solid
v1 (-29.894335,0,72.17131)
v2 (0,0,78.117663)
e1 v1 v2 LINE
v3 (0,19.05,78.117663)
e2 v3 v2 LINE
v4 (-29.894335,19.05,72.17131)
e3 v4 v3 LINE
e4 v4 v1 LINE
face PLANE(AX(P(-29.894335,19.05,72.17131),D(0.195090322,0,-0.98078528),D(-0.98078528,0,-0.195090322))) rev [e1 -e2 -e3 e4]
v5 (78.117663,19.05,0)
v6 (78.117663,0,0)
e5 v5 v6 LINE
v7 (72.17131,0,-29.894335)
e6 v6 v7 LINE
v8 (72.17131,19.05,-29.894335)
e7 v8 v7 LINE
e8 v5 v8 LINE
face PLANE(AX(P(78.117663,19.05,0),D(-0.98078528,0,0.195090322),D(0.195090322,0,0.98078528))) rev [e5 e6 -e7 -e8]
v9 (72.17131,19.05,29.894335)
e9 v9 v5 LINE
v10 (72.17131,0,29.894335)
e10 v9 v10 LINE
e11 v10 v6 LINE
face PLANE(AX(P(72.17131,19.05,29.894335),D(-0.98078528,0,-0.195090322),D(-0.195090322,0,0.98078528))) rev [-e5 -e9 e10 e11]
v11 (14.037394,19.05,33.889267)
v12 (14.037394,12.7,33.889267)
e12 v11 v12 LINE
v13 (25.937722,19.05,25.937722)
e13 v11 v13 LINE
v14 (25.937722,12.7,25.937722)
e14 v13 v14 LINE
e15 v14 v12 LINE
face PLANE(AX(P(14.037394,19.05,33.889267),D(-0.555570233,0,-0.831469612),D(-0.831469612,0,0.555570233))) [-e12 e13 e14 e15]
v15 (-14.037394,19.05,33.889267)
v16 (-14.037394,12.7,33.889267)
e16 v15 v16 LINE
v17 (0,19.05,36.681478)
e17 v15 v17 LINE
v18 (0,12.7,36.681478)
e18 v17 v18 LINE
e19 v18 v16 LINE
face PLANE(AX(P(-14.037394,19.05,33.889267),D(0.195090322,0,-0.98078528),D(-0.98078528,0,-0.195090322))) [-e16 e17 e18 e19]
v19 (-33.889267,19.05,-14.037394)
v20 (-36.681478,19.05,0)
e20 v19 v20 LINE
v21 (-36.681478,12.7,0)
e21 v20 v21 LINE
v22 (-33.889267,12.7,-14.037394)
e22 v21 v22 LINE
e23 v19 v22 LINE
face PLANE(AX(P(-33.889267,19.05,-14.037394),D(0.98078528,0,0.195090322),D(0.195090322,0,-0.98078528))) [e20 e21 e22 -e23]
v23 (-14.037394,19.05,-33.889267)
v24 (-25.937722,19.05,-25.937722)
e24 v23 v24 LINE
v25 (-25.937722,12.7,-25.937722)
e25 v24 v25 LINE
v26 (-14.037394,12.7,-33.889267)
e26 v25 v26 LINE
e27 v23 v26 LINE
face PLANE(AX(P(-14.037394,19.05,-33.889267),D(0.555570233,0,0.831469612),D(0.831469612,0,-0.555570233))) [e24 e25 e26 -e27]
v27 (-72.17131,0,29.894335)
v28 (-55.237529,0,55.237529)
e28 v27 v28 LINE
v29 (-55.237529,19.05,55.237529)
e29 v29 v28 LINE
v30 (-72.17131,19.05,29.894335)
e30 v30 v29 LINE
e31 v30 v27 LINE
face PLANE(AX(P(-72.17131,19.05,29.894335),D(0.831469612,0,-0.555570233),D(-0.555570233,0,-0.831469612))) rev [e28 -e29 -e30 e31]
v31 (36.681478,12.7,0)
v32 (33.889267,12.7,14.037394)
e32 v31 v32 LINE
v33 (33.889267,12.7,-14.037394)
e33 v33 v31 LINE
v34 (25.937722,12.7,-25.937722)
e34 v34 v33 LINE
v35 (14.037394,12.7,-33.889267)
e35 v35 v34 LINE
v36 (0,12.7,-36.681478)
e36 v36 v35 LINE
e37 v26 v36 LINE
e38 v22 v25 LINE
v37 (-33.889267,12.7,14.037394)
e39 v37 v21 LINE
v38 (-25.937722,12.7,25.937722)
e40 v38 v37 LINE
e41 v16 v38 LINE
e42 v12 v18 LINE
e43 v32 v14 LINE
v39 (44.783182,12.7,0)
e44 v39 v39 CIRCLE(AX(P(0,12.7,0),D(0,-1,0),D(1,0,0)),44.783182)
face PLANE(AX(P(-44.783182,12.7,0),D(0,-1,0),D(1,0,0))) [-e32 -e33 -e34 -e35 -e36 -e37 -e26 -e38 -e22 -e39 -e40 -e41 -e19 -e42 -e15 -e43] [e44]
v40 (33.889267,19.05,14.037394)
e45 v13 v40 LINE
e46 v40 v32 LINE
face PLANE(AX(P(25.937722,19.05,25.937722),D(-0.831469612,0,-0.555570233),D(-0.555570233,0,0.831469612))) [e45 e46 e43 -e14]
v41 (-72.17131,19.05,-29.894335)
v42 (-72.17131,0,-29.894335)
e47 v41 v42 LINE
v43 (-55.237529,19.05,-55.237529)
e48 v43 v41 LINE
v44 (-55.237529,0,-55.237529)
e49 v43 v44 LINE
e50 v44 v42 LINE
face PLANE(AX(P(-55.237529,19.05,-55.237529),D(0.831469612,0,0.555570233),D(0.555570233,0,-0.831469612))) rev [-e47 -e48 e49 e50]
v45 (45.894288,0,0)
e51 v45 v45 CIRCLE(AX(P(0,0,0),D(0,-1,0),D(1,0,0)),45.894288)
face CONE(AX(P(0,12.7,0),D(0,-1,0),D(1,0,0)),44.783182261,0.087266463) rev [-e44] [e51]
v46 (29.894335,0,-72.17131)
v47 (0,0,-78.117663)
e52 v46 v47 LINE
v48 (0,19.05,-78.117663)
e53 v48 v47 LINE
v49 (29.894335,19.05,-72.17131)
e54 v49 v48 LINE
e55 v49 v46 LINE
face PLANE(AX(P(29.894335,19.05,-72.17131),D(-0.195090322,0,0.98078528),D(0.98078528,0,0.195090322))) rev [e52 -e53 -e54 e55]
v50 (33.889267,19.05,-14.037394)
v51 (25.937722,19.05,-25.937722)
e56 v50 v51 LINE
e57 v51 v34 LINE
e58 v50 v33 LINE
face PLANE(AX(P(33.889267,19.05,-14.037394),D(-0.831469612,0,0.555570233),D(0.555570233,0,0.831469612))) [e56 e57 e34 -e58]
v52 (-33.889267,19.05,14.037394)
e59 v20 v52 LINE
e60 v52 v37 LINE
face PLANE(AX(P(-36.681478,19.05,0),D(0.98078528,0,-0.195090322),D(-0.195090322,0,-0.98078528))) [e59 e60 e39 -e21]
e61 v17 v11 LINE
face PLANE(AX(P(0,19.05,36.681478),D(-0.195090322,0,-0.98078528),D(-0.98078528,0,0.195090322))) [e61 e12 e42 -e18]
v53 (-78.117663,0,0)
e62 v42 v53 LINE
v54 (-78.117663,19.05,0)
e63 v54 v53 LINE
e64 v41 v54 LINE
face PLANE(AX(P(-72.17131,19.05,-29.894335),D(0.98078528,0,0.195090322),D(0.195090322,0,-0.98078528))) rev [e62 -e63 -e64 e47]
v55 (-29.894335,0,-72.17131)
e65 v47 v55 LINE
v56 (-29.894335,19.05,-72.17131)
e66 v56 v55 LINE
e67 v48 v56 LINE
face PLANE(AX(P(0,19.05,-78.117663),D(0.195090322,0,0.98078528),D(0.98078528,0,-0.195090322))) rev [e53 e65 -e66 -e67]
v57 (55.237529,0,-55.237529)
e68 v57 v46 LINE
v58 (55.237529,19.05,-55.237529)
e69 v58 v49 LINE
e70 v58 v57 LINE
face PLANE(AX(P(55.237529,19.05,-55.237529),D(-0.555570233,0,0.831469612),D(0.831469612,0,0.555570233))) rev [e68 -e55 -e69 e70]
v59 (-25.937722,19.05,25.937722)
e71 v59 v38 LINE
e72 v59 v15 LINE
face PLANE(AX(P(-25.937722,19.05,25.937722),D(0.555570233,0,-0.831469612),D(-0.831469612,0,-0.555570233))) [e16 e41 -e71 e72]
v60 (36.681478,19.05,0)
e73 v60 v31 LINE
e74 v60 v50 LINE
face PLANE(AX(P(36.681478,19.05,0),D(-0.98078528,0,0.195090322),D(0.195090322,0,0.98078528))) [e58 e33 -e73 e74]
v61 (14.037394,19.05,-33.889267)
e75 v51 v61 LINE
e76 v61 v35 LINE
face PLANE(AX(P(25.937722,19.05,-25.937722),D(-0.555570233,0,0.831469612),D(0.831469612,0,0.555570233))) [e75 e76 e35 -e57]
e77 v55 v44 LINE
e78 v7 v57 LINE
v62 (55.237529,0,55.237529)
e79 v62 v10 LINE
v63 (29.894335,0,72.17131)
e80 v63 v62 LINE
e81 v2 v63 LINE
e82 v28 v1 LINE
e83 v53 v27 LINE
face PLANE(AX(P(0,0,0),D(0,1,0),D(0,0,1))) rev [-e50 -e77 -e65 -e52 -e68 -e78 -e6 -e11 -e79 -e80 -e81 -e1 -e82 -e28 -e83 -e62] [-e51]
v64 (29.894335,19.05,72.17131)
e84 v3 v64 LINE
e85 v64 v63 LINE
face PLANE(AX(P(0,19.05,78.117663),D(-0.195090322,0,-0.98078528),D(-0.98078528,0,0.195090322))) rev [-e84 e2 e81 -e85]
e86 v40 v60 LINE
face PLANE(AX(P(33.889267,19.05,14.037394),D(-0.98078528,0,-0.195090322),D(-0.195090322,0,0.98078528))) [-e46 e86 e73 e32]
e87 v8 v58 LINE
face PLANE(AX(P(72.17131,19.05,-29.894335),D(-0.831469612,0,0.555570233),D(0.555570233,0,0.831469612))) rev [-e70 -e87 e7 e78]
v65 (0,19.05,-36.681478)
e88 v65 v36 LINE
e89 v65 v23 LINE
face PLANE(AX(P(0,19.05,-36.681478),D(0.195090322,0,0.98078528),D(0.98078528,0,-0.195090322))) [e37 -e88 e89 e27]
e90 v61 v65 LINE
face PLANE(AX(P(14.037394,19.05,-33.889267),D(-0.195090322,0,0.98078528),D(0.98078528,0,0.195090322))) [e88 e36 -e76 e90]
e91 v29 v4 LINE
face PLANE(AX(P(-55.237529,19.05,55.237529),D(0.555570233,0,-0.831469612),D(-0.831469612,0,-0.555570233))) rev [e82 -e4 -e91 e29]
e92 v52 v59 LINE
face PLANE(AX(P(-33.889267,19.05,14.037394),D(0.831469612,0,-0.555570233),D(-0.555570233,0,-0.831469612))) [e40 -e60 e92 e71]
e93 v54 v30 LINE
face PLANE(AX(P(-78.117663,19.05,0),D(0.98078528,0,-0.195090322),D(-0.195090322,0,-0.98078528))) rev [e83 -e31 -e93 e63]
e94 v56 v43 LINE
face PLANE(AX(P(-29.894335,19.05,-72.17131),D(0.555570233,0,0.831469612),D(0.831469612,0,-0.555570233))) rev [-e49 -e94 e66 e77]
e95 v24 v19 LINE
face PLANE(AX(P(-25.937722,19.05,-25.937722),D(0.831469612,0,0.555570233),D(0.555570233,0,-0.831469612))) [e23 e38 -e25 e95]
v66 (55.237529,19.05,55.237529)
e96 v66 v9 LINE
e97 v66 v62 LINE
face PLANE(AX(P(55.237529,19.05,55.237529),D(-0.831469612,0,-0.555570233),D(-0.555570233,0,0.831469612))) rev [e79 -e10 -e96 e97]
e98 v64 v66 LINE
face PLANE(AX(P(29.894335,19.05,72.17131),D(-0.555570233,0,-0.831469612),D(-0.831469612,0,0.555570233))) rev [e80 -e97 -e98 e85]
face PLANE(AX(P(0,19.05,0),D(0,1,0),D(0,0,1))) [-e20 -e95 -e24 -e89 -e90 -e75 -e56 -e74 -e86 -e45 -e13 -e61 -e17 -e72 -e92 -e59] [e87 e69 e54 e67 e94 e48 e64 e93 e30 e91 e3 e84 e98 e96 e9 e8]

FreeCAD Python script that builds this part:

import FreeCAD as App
import Part
import Sketcher
from FreeCAD import Vector
Q = App.Units.Quantity


def add_polygon(sketch, points):
    """Adds a closed chain of lines whose ends are joined by coincident constraints."""
    first, n = sketch.GeometryCount, len(points)
    for a, b in zip(points, points[1:] + points[:1]):
        sketch.addGeometry(Part.LineSegment(App.Vector(*a, 0), App.Vector(*b, 0)), False)
    for i in range(n):
        sketch.addConstraint(Sketcher.Constraint("Coincident", first + i, 2, first + (i + 1) % n, 1))

doc = App.newDocument("Part")
body = doc.addObject("PartDesign::Body", "Body")

# Sketch on XZ plane
sketch1 = body.newObject("Sketcher::SketchObject", "Sketch")
sketch1.AttachmentSupport = (doc.getObject("XZ_Plane"), [""])
sketch1.MapMode = "FlatFace"
add_polygon(sketch1, [(-78, 0), (-72, 30), (-55, 55), (-30, 72), (0, 78), (30, 72), (55, 55), (72, 30), (78, 0), (72, -30), (55, -55), (30, -72), (0, -78), (-30, -72), (-55, -55), (-72, -30)])  # lines 0-15
add_polygon(sketch1, [(-34, 14), (-37, 0), (-34, -14), (-26, -26), (-14, -34), (0, -37), (14, -34), (26, -26), (34, -14), (37, 0), (34, 14), (26, 26), (14, 34), (0, 37), (-14, 34), (-26, 26)])  # lines 16-31
sketch1.addConstraint([
    Sketcher.Constraint("Symmetric", 0, 2, 8, 2, -1, 1),
    Sketcher.Constraint("Symmetric", 1, 2, 9, 2, -1, 1),
    Sketcher.Constraint("Symmetric", 2, 2, 10, 2, -1, 1),
    Sketcher.Constraint("Symmetric", 3, 2, 11, 2, -1, 1),
    Sketcher.Constraint("Symmetric", 4, 2, 12, 2, -1, 1),
    Sketcher.Constraint("Symmetric", 5, 2, 13, 2, -1, 1),
    Sketcher.Constraint("Symmetric", 6, 2, 14, 2, -1, 1),
    Sketcher.Constraint("Symmetric", 7, 2, 15, 2, -1, 1),
    Sketcher.Constraint("Symmetric", 16, 2, 24, 2, -1, 1),
    Sketcher.Constraint("Symmetric", 17, 2, 25, 2, -1, 1),
    Sketcher.Constraint("Symmetric", 18, 2, 26, 2, -1, 1),
    Sketcher.Constraint("Symmetric", 19, 2, 27, 2, -1, 1),
    Sketcher.Constraint("Symmetric", 20, 2, 28, 2, -1, 1),
    Sketcher.Constraint("Symmetric", 21, 2, 29, 2, -1, 1),
    Sketcher.Constraint("Symmetric", 22, 2, 30, 2, -1, 1),
    Sketcher.Constraint("Symmetric", 23, 2, 31, 2, -1, 1),
    Sketcher.Constraint("Symmetric", 2, 2, 4, 2, -2),
    Sketcher.Constraint("Symmetric", 1, 2, 5, 2, -2),
    Sketcher.Constraint("Symmetric", 0, 2, 6, 2, -2),
    Sketcher.Constraint("Symmetric", 19, 2, 21, 2, -2),
    Sketcher.Constraint("Symmetric", 18, 2, 22, 2, -2),
    Sketcher.Constraint("Symmetric", 17, 2, 23, 2, -2),
    Sketcher.Constraint("PointOnObject", 3, 2, -2),
    Sketcher.Constraint("PointOnObject", 7, 2, -1),
    Sketcher.Constraint("PointOnObject", 16, 2, -1),
    Sketcher.Constraint("PointOnObject", 20, 2, -2),
    Sketcher.Constraint("Perpendicular", 0, 4),
    Sketcher.Constraint("Perpendicular", 1, 5),
    Sketcher.Constraint("Perpendicular", 12, 16),
    Sketcher.Constraint("Parallel", 14, 18),
    Sketcher.Constraint("Parallel", 13, 19),
    Sketcher.Constraint("Perpendicular", 16, 20),
    Sketcher.Constraint("Equal", 0, 1),
    Sketcher.Constraint("Equal", 1, 2),
    Sketcher.Constraint("Equal", 2, 3),
    Sketcher.Constraint("Equal", 17, 18),
    Sketcher.Constraint("Equal", 18, 19),
    Sketcher.Constraint("Equal", 19, 20),
    Sketcher.Constraint("Distance", 0, Q("1.2 in")),
    Sketcher.Constraint("Angle", 0, Q("78.75 deg")),
    Sketcher.Constraint("Angle", 1, Q("56.25 deg")),
    Sketcher.Constraint("DistanceX", 16, 2, -1, 1, Q("36.681478 mm")),
])
pad1 = body.newObject("PartDesign::Pad", "Pad")
pad1.Profile = sketch1
pad1.Length = Q("0.75 in")
pad1.Reversed = True

# Sketch on XY plane
sketch2 = body.newObject("Sketcher::SketchObject", "Sketch001")
sketch2.AttachmentSupport = (doc.getObject("XY_Plane"), [""])
sketch2.MapMode = "FlatFace"
add_polygon(sketch2, [(-45, 13), (-46, 0), (-10, 0), (-10, 13)])  # lines 0-3
sketch2.addConstraint([
    Sketcher.Constraint("Horizontal", 1),
    Sketcher.Constraint("Vertical", 2),
    Sketcher.Constraint("Horizontal", 3),
    Sketcher.Constraint("PointOnObject", 0, 2, -1),
    Sketcher.Constraint("DistanceY", 2, 1, 2, 2, Q("0.5 in")),
    Sketcher.Constraint("Angle", 0, Q("-95 deg")),
    Sketcher.Constraint("DistanceX", 1, 1, 1, 2, Q("35.675383 mm")),
    Sketcher.Constraint("DistanceX", 0, 2, -1, 1, Q("45.894288 mm")),
])
groove = body.newObject("PartDesign::Groove", "Groove")
groove.Profile = sketch2
groove.ReferenceAxis = (sketch2, ["V_Axis"])
groove.Angle = 360

doc.recompute()
